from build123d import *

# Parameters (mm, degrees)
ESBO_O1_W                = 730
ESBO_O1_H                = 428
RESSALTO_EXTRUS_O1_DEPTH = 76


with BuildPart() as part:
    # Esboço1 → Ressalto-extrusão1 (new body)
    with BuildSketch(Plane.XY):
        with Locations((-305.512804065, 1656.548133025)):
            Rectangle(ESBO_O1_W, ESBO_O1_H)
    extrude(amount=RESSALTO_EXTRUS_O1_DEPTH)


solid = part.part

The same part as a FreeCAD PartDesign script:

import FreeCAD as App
import Part
import Sketcher

V = App.Vector
Q = App.Units.Quantity


def add_polygon(sketch, points):
    """Adds a closed chain of lines whose ends are joined by coincident constraints."""
    first, n = sketch.GeometryCount, len(points)
    for a, b in zip(points, points[1:] + points[:1]):
        sketch.addGeometry(Part.LineSegment(App.Vector(*a, 0), App.Vector(*b, 0)), False)
    for i in range(n):
        sketch.addConstraint(Sketcher.Constraint("Coincident", first + i, 2, first + (i + 1) % n, 1))

doc = App.newDocument("Part")
body = doc.addObject("PartDesign::Body", "Body")

# Sketch on XY plane
sketch1 = doc.addObject("Sketcher::SketchObject", "Sketch")
body.addObject(sketch1)
sketch1.AttachmentSupport = (doc.XY_Plane, [""])
sketch1.MapMode = "FlatFace"
add_polygon(sketch1, [(-671, 1871), (-671, 1443), (59, 1443), (59, 1871)])  # lines 0-3
sketch1.addConstraint([
    Sketcher.Constraint("Vertical", 0),
    Sketcher.Constraint("Horizontal", 1),
    Sketcher.Constraint("Vertical", 2),
    Sketcher.Constraint("Horizontal", 3),
    Sketcher.Constraint("DistanceX", 1, 1, 1, 2, Q("730 mm")),
    Sketcher.Constraint("DistanceY", 0, 2, 0, 1, Q("428 mm")),
    Sketcher.Constraint("DistanceX", 0, 2, -1, 1, Q("670.512804 mm")),
    Sketcher.Constraint("DistanceY", -1, 1, 0, 2, Q("1442.548133 mm")),
])
pad1 = doc.addObject("PartDesign::Pad", "Pad")
body.addObject(pad1)
pad1.Profile = sketch1
pad1.Length = 76

doc.recompute()
